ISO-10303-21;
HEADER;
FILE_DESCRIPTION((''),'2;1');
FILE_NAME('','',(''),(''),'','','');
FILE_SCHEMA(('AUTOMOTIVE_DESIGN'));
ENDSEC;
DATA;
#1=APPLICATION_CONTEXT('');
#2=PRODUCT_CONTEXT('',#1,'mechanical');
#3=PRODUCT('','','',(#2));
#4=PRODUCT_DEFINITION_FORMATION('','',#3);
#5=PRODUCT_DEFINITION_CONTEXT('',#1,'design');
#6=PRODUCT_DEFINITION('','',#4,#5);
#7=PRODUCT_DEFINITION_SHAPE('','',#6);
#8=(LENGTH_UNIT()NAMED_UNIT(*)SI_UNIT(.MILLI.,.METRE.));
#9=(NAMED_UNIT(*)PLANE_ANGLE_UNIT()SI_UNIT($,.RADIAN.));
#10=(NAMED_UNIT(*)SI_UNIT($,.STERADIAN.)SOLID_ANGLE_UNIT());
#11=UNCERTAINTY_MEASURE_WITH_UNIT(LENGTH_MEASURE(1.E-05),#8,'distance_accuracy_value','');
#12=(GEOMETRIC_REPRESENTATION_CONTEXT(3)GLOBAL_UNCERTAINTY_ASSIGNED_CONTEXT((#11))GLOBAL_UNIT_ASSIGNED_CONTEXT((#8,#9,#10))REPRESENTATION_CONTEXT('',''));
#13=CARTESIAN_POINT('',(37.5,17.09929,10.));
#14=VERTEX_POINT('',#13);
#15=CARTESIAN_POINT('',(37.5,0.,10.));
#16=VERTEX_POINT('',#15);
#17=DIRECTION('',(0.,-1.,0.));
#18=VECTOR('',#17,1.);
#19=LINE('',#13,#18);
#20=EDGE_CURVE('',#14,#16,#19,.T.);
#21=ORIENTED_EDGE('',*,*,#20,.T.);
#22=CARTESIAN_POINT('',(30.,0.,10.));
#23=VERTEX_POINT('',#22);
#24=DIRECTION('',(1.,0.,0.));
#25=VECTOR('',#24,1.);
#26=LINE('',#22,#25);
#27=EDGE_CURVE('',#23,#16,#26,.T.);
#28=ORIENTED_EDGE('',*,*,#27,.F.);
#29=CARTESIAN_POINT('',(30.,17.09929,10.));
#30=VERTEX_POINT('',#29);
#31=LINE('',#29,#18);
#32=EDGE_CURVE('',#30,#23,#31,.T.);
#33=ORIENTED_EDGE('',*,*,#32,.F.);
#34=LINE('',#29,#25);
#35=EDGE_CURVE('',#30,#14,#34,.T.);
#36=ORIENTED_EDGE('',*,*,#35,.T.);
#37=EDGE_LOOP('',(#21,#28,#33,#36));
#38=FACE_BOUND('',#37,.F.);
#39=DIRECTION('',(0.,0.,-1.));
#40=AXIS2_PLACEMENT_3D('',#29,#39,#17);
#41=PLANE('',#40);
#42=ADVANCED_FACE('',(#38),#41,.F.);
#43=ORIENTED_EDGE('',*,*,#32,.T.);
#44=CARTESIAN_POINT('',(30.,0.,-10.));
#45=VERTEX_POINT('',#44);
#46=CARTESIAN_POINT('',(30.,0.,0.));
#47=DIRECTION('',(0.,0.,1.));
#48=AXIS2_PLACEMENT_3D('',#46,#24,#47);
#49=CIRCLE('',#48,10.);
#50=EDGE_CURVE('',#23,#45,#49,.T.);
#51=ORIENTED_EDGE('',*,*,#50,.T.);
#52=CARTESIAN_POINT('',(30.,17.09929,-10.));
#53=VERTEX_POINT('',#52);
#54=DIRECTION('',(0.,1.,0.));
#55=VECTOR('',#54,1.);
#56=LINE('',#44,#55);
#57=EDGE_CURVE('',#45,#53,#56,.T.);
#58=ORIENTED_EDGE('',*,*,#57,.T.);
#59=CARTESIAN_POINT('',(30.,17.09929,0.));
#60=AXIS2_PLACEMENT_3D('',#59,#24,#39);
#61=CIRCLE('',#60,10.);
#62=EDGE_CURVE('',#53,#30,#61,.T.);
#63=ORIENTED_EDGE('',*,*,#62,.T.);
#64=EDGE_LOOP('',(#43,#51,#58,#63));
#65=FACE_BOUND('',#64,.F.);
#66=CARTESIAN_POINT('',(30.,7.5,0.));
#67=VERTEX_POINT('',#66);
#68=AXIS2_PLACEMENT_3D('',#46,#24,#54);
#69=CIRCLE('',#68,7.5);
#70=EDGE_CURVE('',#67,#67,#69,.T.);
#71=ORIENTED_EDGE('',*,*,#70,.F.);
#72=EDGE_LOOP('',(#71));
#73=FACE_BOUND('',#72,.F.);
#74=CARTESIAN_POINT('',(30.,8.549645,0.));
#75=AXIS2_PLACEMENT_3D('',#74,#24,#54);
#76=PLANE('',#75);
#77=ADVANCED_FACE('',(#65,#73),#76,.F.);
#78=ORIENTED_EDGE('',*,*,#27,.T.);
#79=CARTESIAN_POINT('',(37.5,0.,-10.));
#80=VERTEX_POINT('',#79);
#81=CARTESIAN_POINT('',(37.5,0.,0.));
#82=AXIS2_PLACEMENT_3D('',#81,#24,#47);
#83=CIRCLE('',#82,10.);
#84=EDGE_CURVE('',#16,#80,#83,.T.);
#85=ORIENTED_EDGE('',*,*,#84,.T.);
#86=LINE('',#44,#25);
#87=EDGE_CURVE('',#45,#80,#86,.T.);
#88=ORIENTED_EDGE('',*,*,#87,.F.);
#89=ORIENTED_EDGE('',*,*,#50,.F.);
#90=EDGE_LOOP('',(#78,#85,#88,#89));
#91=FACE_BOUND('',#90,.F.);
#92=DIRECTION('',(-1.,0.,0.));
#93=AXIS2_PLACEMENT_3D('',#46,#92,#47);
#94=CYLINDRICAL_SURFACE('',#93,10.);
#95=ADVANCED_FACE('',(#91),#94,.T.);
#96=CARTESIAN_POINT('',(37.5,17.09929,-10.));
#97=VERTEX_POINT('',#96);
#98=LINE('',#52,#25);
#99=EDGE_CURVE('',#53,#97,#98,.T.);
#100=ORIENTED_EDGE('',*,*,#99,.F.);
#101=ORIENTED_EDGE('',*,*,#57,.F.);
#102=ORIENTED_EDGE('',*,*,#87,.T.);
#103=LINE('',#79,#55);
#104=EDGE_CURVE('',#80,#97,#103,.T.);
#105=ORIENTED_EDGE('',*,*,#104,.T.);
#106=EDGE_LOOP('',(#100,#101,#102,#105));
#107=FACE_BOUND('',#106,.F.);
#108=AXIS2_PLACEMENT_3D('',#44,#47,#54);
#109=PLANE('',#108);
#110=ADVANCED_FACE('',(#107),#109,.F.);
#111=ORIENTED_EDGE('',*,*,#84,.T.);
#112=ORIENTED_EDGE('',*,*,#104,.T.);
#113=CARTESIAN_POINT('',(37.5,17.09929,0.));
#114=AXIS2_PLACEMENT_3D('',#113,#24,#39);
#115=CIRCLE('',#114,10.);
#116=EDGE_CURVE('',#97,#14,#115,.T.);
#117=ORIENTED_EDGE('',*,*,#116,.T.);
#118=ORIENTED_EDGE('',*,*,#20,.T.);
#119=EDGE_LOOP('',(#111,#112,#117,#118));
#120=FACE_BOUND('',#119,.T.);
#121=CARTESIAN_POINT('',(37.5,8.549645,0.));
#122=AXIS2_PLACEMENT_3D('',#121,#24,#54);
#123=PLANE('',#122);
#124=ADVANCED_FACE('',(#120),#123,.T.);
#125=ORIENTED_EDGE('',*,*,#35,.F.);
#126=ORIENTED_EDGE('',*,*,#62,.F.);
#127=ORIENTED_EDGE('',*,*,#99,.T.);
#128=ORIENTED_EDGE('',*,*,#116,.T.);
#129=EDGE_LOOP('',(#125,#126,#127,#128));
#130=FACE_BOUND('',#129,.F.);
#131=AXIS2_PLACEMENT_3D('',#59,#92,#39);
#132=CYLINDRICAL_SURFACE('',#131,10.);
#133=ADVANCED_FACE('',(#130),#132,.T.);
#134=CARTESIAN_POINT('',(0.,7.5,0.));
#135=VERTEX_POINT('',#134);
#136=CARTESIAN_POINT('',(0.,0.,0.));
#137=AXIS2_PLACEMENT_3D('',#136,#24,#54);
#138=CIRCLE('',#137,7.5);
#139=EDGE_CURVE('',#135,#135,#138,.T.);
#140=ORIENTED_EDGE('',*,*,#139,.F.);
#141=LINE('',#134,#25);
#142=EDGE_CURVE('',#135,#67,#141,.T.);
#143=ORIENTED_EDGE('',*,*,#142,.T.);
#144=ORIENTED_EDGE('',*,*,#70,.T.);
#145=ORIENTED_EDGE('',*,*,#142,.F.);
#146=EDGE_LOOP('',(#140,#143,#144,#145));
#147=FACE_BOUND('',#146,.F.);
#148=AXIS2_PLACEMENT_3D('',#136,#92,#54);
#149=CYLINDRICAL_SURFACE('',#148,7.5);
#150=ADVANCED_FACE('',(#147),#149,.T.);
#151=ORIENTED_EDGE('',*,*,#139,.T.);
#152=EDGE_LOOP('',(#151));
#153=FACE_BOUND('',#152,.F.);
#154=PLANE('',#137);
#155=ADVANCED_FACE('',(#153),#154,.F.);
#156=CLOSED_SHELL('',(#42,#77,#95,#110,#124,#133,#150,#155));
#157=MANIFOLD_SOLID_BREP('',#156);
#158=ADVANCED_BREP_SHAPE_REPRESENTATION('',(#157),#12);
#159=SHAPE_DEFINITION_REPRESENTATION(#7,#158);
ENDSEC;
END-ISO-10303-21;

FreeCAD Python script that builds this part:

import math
import FreeCAD as App
import Part
import Sketcher

V = App.Vector
Q = App.Units.Quantity

doc = App.newDocument("Part")
params = doc.addObject("Spreadsheet::Sheet", "Params")
for row, (alias, value) in enumerate([
    ("sketch1_diameter", "15 mm"),
    ("pad1_length", "30 mm"),
    ("sketch2_radius", "10 mm"),
    ("pad2_length", "7.5 mm"),
], start=1):
    params.set(f"A{row}", alias)
    params.set(f"B{row}", "=" + value)
    params.setAlias(f"B{row}", alias)

body = doc.addObject("PartDesign::Body", "Body")

# Sketch on YZ plane
sketch1 = body.newObject("Sketcher::SketchObject", "Sketch")
sketch1.AttachmentSupport = (doc.getObject("YZ_Plane"), [""])
sketch1.MapMode = "FlatFace"
sketch1.addGeometry(Part.Circle(V(0, 0, 0), V(0, 0, 1), 8), False)
sketch1.addConstraint(Sketcher.Constraint("Coincident", 0, 3, -1, 1))
sketch1.addConstraint(Sketcher.Constraint("Diameter", 0, Q("15 mm")))
sketch1.setExpression("Constraints[1]", "Params.sketch1_diameter")
pad1 = body.newObject("PartDesign::Pad", "Pad")
pad1.Profile = sketch1
pad1.setExpression("Length", "Params.pad1_length")

# Sketch on YZ plane
sketch2 = body.newObject("Sketcher::SketchObject", "Sketch001")
sketch2.AttachmentSupport = (doc.getObject("YZ_Plane"), [""])
sketch2.MapMode = "FlatFace"
sketch2.AttachmentOffset = App.Placement(V(0, 0, 30), App.Rotation())
sketch2.addGeometry(Part.LineSegment(V(17, 10, 0), V(0, 10, 0)), False)
sketch2.addGeometry(Part.ArcOfCircle(Part.Circle(V(0, 0, 0), V(0, 0, 1), 10), math.radians(90), math.radians(270)), False)
sketch2.addGeometry(Part.LineSegment(V(0, -10, 0), V(17, -10, 0)), False)
sketch2.addGeometry(Part.ArcOfCircle(Part.Circle(V(17, 0, 0), V(0, 0, 1), 10), math.radians(-90), math.radians(90)), False)
sketch2.addConstraint(Sketcher.Constraint("Tangent", 0, 2, 1, 1))
sketch2.addConstraint(Sketcher.Constraint("Tangent", 1, 2, 2, 1))
sketch2.addConstraint(Sketcher.Constraint("Tangent", 2, 2, 3, 1))
sketch2.addConstraint(Sketcher.Constraint("Tangent", 3, 2, 0, 1))
sketch2.addConstraint(Sketcher.Constraint("Horizontal", 0))
sketch2.addConstraint(Sketcher.Constraint("Horizontal", 2))
sketch2.addConstraint(Sketcher.Constraint("Coincident", 1, 3, -1, 1))
sketch2.addConstraint(Sketcher.Constraint("Radius", 1, Q("10 mm")))
sketch2.addConstraint(Sketcher.Constraint("DistanceX", 0, 2, 0, 1, Q("17.09929 mm")))
sketch2.setExpression("Constraints[7]", "Params.sketch2_radius")
pad2 = body.newObject("PartDesign::Pad", "Pad001")
pad2.Profile = sketch2
pad2.setExpression("Length", "Params.pad2_length")

doc.recompute()
